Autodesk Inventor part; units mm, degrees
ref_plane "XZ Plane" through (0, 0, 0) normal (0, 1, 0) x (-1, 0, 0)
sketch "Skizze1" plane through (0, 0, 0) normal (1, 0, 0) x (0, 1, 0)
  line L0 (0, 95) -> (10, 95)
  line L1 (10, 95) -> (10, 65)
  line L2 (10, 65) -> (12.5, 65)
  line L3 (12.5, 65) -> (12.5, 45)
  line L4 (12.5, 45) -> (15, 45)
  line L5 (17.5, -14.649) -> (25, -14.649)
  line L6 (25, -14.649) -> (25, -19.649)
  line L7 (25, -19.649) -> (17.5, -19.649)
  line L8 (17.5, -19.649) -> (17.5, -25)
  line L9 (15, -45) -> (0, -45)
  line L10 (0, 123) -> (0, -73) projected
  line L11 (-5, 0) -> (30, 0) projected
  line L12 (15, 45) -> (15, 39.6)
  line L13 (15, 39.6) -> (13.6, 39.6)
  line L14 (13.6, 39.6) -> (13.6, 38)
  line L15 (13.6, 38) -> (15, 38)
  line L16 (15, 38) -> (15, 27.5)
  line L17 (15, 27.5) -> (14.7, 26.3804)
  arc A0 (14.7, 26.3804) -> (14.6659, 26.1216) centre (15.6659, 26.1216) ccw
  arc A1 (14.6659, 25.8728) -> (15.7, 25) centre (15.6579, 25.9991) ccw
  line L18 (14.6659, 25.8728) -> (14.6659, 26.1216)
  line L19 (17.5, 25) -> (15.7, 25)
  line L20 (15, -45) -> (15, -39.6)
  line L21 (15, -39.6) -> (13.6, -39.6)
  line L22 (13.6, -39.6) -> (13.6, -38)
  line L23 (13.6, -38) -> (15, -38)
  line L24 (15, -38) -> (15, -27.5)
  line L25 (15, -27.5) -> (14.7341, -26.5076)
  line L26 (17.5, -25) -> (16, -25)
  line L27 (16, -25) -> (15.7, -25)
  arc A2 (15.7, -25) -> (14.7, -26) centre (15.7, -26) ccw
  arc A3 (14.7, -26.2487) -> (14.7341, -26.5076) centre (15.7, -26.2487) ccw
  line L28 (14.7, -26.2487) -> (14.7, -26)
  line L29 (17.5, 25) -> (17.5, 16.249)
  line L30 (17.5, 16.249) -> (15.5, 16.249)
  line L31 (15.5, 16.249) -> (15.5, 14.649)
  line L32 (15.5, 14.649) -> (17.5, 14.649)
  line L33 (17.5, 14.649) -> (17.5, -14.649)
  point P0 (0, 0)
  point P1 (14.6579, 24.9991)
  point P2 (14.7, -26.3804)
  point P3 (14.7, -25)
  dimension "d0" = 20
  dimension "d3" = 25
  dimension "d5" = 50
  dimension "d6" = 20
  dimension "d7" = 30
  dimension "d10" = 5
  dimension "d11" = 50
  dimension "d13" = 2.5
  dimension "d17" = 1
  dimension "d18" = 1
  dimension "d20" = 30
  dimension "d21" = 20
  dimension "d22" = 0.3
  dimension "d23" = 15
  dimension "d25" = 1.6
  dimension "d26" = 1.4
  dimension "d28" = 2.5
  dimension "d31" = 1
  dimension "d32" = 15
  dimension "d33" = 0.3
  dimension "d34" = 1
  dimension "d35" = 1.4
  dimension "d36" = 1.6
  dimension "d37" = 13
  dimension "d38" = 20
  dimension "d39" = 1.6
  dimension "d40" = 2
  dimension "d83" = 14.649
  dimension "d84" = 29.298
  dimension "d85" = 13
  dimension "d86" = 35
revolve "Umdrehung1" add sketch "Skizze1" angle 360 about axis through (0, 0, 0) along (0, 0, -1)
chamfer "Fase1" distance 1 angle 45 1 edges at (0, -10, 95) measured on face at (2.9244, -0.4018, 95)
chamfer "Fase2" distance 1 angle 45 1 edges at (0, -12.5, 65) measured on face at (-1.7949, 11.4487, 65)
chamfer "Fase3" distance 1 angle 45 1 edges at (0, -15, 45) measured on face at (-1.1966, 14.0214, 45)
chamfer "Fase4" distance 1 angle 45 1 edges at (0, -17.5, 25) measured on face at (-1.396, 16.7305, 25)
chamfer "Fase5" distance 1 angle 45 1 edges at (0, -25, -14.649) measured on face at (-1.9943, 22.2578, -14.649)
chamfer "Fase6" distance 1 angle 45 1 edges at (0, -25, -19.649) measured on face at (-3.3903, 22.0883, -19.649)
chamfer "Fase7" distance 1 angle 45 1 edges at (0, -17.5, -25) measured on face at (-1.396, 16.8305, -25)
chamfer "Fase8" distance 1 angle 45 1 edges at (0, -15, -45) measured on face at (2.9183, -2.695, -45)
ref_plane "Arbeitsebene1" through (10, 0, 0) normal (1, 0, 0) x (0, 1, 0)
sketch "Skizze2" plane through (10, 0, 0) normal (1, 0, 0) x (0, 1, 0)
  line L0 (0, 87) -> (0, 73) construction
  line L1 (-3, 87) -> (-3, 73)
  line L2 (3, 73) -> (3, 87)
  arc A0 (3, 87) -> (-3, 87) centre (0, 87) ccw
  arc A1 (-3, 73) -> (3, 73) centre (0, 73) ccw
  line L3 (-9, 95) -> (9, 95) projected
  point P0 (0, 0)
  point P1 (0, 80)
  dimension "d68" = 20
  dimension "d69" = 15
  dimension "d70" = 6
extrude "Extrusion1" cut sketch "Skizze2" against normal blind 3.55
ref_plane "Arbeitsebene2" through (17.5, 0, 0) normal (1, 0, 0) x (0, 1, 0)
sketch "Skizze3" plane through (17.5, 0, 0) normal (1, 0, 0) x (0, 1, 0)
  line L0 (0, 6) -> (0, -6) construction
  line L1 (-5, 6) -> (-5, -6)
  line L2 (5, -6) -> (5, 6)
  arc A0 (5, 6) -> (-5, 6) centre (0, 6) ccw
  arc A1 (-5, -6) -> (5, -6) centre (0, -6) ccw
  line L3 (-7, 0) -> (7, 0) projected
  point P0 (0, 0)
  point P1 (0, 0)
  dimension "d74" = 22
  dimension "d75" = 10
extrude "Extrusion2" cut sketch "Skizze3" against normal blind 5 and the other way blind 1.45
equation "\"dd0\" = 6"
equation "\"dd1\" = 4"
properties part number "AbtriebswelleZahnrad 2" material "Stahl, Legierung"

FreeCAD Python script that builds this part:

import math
import FreeCAD as App
import Part
import Sketcher
Q = App.Units.Quantity


def edges_at(feature, points):
    """Names of the edges that pass closest to the given points."""
    edges = feature.Shape.Edges
    near = lambda p: min(range(len(edges)), key=lambda i: edges[i].distToShape(Part.Vertex(*p))[0])
    return sorted({f"Edge{near(p) + 1}" for p in points})

doc = App.newDocument("Part")
params = doc.addObject("Spreadsheet::Sheet", "Params")
for row, (alias, value) in enumerate([
    ("sketch1_radius", "1 mm"),
    ("sketch1_width", "15 mm"),
    ("sketch1_width2", "2 mm"),
    ("sketch1_height", "5 mm"),
    ("sketch1_height2", "20 mm"),
    ("revolution_angle", "360 deg"),
    ("chamfer_size", "1 mm"),
    ("chamfer2_size", "1 mm"),
    ("chamfer3_size", "1 mm"),
    ("chamfer4_size", "1 mm"),
    ("chamfer5_size", "1 mm"),
    ("chamfer6_size", "1 mm"),
    ("chamfer7_size", "1 mm"),
    ("chamfer8_size", "1 mm"),
    ("sketch2_radius", "3 mm"),
    ("sketch2_height", "14 mm"),
    ("pocket1_length", "3.55 mm"),
    ("sketch3_radius", "5 mm"),
    ("sketch3_height", "12 mm"),
    ("pocket2_length", "5 mm"),
    ("pocket2_length2", "1.45 mm"),
], start=1):
    params.set(f"A{row}", alias)
    params.set(f"B{row}", "=" + value)
    params.setAlias(f"B{row}", alias)

body = doc.addObject("PartDesign::Body", "Body")

sketch1 = doc.addObject("Sketcher::SketchObject", "Sketch")
body.addObject(sketch1)
sketch1.AttachmentSupport = (doc.YZ_Plane, [""])
sketch1.MapMode = "FlatFace"
sketch1.addGeometry(Part.LineSegment(App.Vector(10, 95, 0), App.Vector(0, 95, 0)), False)
sketch1.addGeometry(Part.LineSegment(App.Vector(0, 95, 0), App.Vector(0, -45, 0)), False)
sketch1.addGeometry(Part.LineSegment(App.Vector(0, -45, 0), App.Vector(15, -45, 0)), False)
sketch1.addGeometry(Part.LineSegment(App.Vector(15, -45, 0), App.Vector(15, -39.6, 0)), False)
sketch1.addGeometry(Part.LineSegment(App.Vector(15, -39.6, 0), App.Vector(13.6, -39.6, 0)), False)
sketch1.addGeometry(Part.LineSegment(App.Vector(13.6, -39.6, 0), App.Vector(13.6, -38, 0)), False)
sketch1.addGeometry(Part.LineSegment(App.Vector(13.6, -38, 0), App.Vector(15, -38, 0)), False)
sketch1.addGeometry(Part.LineSegment(App.Vector(15, -38, 0), App.Vector(15, -27.5, 0)), False)
sketch1.addGeometry(Part.LineSegment(App.Vector(15, -27.5, 0), App.Vector(14.73, -26.51, 0)), False)
sketch1.addGeometry(Part.ArcOfCircle(Part.Circle(App.Vector(15.7, -26.25, 0), App.Vector(0, 0, 1), 1), math.radians(180), math.radians(195)), False)
sketch1.addGeometry(Part.LineSegment(App.Vector(14.7, -26.25, 0), App.Vector(14.7, -26, 0)), False)
sketch1.addGeometry(Part.ArcOfCircle(Part.Circle(App.Vector(15.7, -26, 0), App.Vector(0, 0, 1), 1), math.radians(90), math.radians(180)), False)
sketch1.addGeometry(Part.LineSegment(App.Vector(15.7, -25, 0), App.Vector(17.5, -25, 0)), False)
sketch1.addGeometry(Part.LineSegment(App.Vector(17.5, -25, 0), App.Vector(17.5, -19.65, 0)), False)
sketch1.addGeometry(Part.LineSegment(App.Vector(17.5, -19.65, 0), App.Vector(25, -19.65, 0)), False)
sketch1.addGeometry(Part.LineSegment(App.Vector(25, -19.65, 0), App.Vector(25, -14.65, 0)), False)
sketch1.addGeometry(Part.LineSegment(App.Vector(25, -14.65, 0), App.Vector(17.5, -14.65, 0)), False)
sketch1.addGeometry(Part.LineSegment(App.Vector(17.5, -14.65, 0), App.Vector(17.5, 14.65, 0)), False)
sketch1.addGeometry(Part.LineSegment(App.Vector(17.5, 14.65, 0), App.Vector(15.5, 14.65, 0)), False)
sketch1.addGeometry(Part.LineSegment(App.Vector(15.5, 14.65, 0), App.Vector(15.5, 16.25, 0)), False)
sketch1.addGeometry(Part.LineSegment(App.Vector(15.5, 16.25, 0), App.Vector(17.5, 16.25, 0)), False)
sketch1.addGeometry(Part.LineSegment(App.Vector(17.5, 16.25, 0), App.Vector(17.5, 25, 0)), False)
sketch1.addGeometry(Part.LineSegment(App.Vector(17.5, 25, 0), App.Vector(15.7, 25, 0)), False)
sketch1.addGeometry(Part.ArcOfCircle(Part.Circle(App.Vector(15.66, 26, 0), App.Vector(0, 0, 1), 1), math.radians(-173), math.radians(-88)), False)
sketch1.addGeometry(Part.LineSegment(App.Vector(14.67, 25.87, 0), App.Vector(14.67, 26.12, 0)), False)
sketch1.addGeometry(Part.ArcOfCircle(Part.Circle(App.Vector(15.67, 26.12, 0), App.Vector(0, 0, 1), 1), math.radians(165.01), math.radians(179.98)), False)
sketch1.addGeometry(Part.LineSegment(App.Vector(14.7, 26.38, 0), App.Vector(15, 27.5, 0)), False)
sketch1.addGeometry(Part.LineSegment(App.Vector(15, 27.5, 0), App.Vector(15, 38, 0)), False)
sketch1.addGeometry(Part.LineSegment(App.Vector(15, 38, 0), App.Vector(13.6, 38, 0)), False)
sketch1.addGeometry(Part.LineSegment(App.Vector(13.6, 38, 0), App.Vector(13.6, 39.6, 0)), False)
sketch1.addGeometry(Part.LineSegment(App.Vector(13.6, 39.6, 0), App.Vector(15, 39.6, 0)), False)
sketch1.addGeometry(Part.LineSegment(App.Vector(15, 39.6, 0), App.Vector(15, 45, 0)), False)
sketch1.addGeometry(Part.LineSegment(App.Vector(15, 45, 0), App.Vector(12.5, 45, 0)), False)
sketch1.addGeometry(Part.LineSegment(App.Vector(12.5, 45, 0), App.Vector(12.5, 65, 0)), False)
sketch1.addGeometry(Part.LineSegment(App.Vector(12.5, 65, 0), App.Vector(10, 65, 0)), False)
sketch1.addGeometry(Part.LineSegment(App.Vector(10, 65, 0), App.Vector(10, 95, 0)), False)
sketch1.addConstraint(Sketcher.Constraint("Coincident", 0, 2, 1, 1))
sketch1.addConstraint(Sketcher.Constraint("Coincident", 1, 2, 2, 1))
sketch1.addConstraint(Sketcher.Constraint("Coincident", 2, 2, 3, 1))
sketch1.addConstraint(Sketcher.Constraint("Coincident", 3, 2, 4, 1))
sketch1.addConstraint(Sketcher.Constraint("Coincident", 4, 2, 5, 1))
sketch1.addConstraint(Sketcher.Constraint("Coincident", 5, 2, 6, 1))
sketch1.addConstraint(Sketcher.Constraint("Coincident", 6, 2, 7, 1))
sketch1.addConstraint(Sketcher.Constraint("Coincident", 7, 2, 8, 1))
sketch1.addConstraint(Sketcher.Constraint("Tangent", 8, 2, 9, 2))
sketch1.addConstraint(Sketcher.Constraint("Tangent", 9, 1, 10, 1))
sketch1.addConstraint(Sketcher.Constraint("Tangent", 10, 2, 11, 2))
sketch1.addConstraint(Sketcher.Constraint("Tangent", 11, 1, 12, 1))
sketch1.addConstraint(Sketcher.Constraint("Coincident", 12, 2, 13, 1))
sketch1.addConstraint(Sketcher.Constraint("Coincident", 13, 2, 14, 1))
sketch1.addConstraint(Sketcher.Constraint("Coincident", 14, 2, 15, 1))
sketch1.addConstraint(Sketcher.Constraint("Coincident", 15, 2, 16, 1))
sketch1.addConstraint(Sketcher.Constraint("Coincident", 16, 2, 17, 1))
sketch1.addConstraint(Sketcher.Constraint("Coincident", 17, 2, 18, 1))
sketch1.addConstraint(Sketcher.Constraint("Coincident", 18, 2, 19, 1))
sketch1.addConstraint(Sketcher.Constraint("Coincident", 19, 2, 20, 1))
sketch1.addConstraint(Sketcher.Constraint("Coincident", 20, 2, 21, 1))
sketch1.addConstraint(Sketcher.Constraint("Coincident", 21, 2, 22, 1))
sketch1.addConstraint(Sketcher.Constraint("Coincident", 22, 2, 23, 2))
sketch1.addConstraint(Sketcher.Constraint("Coincident", 23, 1, 24, 1))
sketch1.addConstraint(Sketcher.Constraint("Tangent", 24, 2, 25, 2))
sketch1.addConstraint(Sketcher.Constraint("Tangent", 25, 1, 26, 1))
sketch1.addConstraint(Sketcher.Constraint("Coincident", 26, 2, 27, 1))
sketch1.addConstraint(Sketcher.Constraint("Coincident", 27, 2, 28, 1))
sketch1.addConstraint(Sketcher.Constraint("Coincident", 28, 2, 29, 1))
sketch1.addConstraint(Sketcher.Constraint("Coincident", 29, 2, 30, 1))
sketch1.addConstraint(Sketcher.Constraint("Coincident", 30, 2, 31, 1))
sketch1.addConstraint(Sketcher.Constraint("Coincident", 31, 2, 32, 1))
sketch1.addConstraint(Sketcher.Constraint("Coincident", 32, 2, 33, 1))
sketch1.addConstraint(Sketcher.Constraint("Coincident", 33, 2, 34, 1))
sketch1.addConstraint(Sketcher.Constraint("Coincident", 34, 2, 35, 1))
sketch1.addConstraint(Sketcher.Constraint("Coincident", 35, 2, 0, 1))
sketch1.addConstraint(Sketcher.Constraint("Horizontal", 0))
sketch1.addConstraint(Sketcher.Constraint("Vertical", 1))
sketch1.addConstraint(Sketcher.Constraint("Horizontal", 2))
sketch1.addConstraint(Sketcher.Constraint("Vertical", 3))
sketch1.addConstraint(Sketcher.Constraint("Horizontal", 4))
sketch1.addConstraint(Sketcher.Constraint("Vertical", 5))
sketch1.addConstraint(Sketcher.Constraint("Horizontal", 6))
sketch1.addConstraint(Sketcher.Constraint("Vertical", 7))
sketch1.addConstraint(Sketcher.Constraint("Vertical", 10))
sketch1.addConstraint(Sketcher.Constraint("Horizontal", 12))
sketch1.addConstraint(Sketcher.Constraint("Vertical", 13))
sketch1.addConstraint(Sketcher.Constraint("Horizontal", 14))
sketch1.addConstraint(Sketcher.Constraint("Vertical", 15))
sketch1.addConstraint(Sketcher.Constraint("Horizontal", 16))
sketch1.addConstraint(Sketcher.Constraint("Vertical", 17))
sketch1.addConstraint(Sketcher.Constraint("Horizontal", 18))
sketch1.addConstraint(Sketcher.Constraint("Vertical", 19))
sketch1.addConstraint(Sketcher.Constraint("Horizontal", 20))
sketch1.addConstraint(Sketcher.Constraint("Vertical", 21))
sketch1.addConstraint(Sketcher.Constraint("Horizontal", 22))
sketch1.addConstraint(Sketcher.Constraint("Vertical", 24))
sketch1.addConstraint(Sketcher.Constraint("Vertical", 27))
sketch1.addConstraint(Sketcher.Constraint("Horizontal", 28))
sketch1.addConstraint(Sketcher.Constraint("Vertical", 29))
sketch1.addConstraint(Sketcher.Constraint("Horizontal", 30))
sketch1.addConstraint(Sketcher.Constraint("Vertical", 31))
sketch1.addConstraint(Sketcher.Constraint("Horizontal", 32))
sketch1.addConstraint(Sketcher.Constraint("Vertical", 33))
sketch1.addConstraint(Sketcher.Constraint("Horizontal", 34))
sketch1.addConstraint(Sketcher.Constraint("Vertical", 35))
sketch1.addConstraint(Sketcher.Constraint("Equal", 9, 11))
sketch1.addConstraint(Sketcher.Constraint("Equal", 11, 23))
sketch1.addConstraint(Sketcher.Constraint("Symmetric", 12, 2, 21, 2, -1))
sketch1.addConstraint(Sketcher.Constraint("Symmetric", 7, 2, 26, 2, -1))
sketch1.addConstraint(Sketcher.Constraint("Symmetric", 5, 2, 28, 2, -1))
sketch1.addConstraint(Sketcher.Constraint("Symmetric", 3, 2, 30, 2, -1))
sketch1.addConstraint(Sketcher.Constraint("PointOnObject", 0, 2, -2))
sketch1.addConstraint(Sketcher.Constraint("Vertical", 3, 2, 6, 2))
sketch1.addConstraint(Sketcher.Constraint("Vertical", 13, 2, 16, 2))
sketch1.addConstraint(Sketcher.Constraint("Vertical", 11, 1, 22, 2))
sketch1.addConstraint(Sketcher.Constraint("Vertical", 10, 2, 25, 1))
sketch1.addConstraint(Sketcher.Constraint("Equal", 32, 34))
sketch1.addConstraint(Sketcher.Constraint("Equal", 5, 19))
sketch1.addConstraint(Sketcher.Constraint("Equal", 10, 24))
sketch1.addConstraint(Sketcher.Constraint("Equal", 3, 31))
sketch1.addConstraint(Sketcher.Constraint("Radius", 9, 1.0))
sketch1.addConstraint(Sketcher.Constraint("DistanceX", 2, 1, 2, 2, 15.0))
sketch1.addConstraint(Sketcher.Constraint("DistanceX", 18, 2, 18, 1, 2.0))
sketch1.addConstraint(Sketcher.Constraint("DistanceY", 15, 1, 15, 2, 5.0))
sketch1.addConstraint(Sketcher.Constraint("DistanceY", 33, 1, 33, 2, 20.0))
sketch1.addConstraint(Sketcher.Constraint("DistanceY", 35, 1, 35, 2, 30.0))
sketch1.addConstraint(Sketcher.Constraint("DistanceX", 4, 2, 4, 1, 1.4))
sketch1.addConstraint(Sketcher.Constraint("DistanceX", 32, 2, 32, 1, 2.5))
sketch1.addConstraint(Sketcher.Constraint("DistanceY", 5, 1, 5, 2, 1.6))
sketch1.addConstraint(Sketcher.Constraint("DistanceY", 11, 1, -1, 1, 25.0))
sketch1.addConstraint(Sketcher.Constraint("DistanceX", -1, 1, 14, 2, 25.0))
sketch1.addConstraint(Sketcher.Constraint("DistanceX", 9, 1, 7, 2, 0.3))
sketch1.addConstraint(Sketcher.Constraint("DistanceY", 1, 2, 1, 1, 140.0))
sketch1.addConstraint(Sketcher.Constraint("DistanceY", 17, 1, 17, 2, 29.298))
sketch1.addConstraint(Sketcher.Constraint("Angle", 8, Q("104.9993 deg")))
sketch1.addConstraint(Sketcher.Constraint("Angle", 26, Q("74.9998 deg")))
sketch1.addConstraint(Sketcher.Constraint("DistanceX", 12, 1, 12, 2, 1.8))
sketch1.addConstraint(Sketcher.Constraint("DistanceY", 3, 1, 3, 2, 5.4))
sketch1.addConstraint(Sketcher.Constraint("DistanceY", 7, 1, 7, 2, 10.5))
sketch1.addConstraint(Sketcher.Constraint("DistanceY", 15, 2, -1, 1, 14.649))
sketch1.addConstraint(Sketcher.Constraint("Radius", 25, 1.0017))
sketch1.setExpression("Constraints[81]", "Params.sketch1_radius")
sketch1.setExpression("Constraints[82]", "Params.sketch1_width")
sketch1.setExpression("Constraints[83]", "Params.sketch1_width2")
sketch1.setExpression("Constraints[84]", "Params.sketch1_height")
sketch1.setExpression("Constraints[85]", "Params.sketch1_height2")
revolution = doc.addObject("PartDesign::Revolution", "Revolution")
body.addObject(revolution)
revolution.Profile = sketch1
revolution.ReferenceAxis = (sketch1, ["V_Axis"])
revolution.setExpression("Angle", "Params.revolution_angle")
doc.recompute()

chamfer = doc.addObject("PartDesign::Chamfer", "Chamfer")
body.addObject(chamfer)
chamfer.Base = (revolution, edges_at(revolution, [(0, -10, 95)]))
chamfer.setExpression("Size", "Params.chamfer_size")
doc.recompute()

chamfer2 = doc.addObject("PartDesign::Chamfer", "Chamfer001")
body.addObject(chamfer2)
chamfer2.Base = (chamfer, edges_at(chamfer, [(0, -12.5, 65)]))
chamfer2.setExpression("Size", "Params.chamfer2_size")
doc.recompute()

chamfer3 = doc.addObject("PartDesign::Chamfer", "Chamfer002")
body.addObject(chamfer3)
chamfer3.Base = (chamfer2, edges_at(chamfer2, [(0, -15, 45)]))
chamfer3.setExpression("Size", "Params.chamfer3_size")
doc.recompute()

chamfer4 = doc.addObject("PartDesign::Chamfer", "Chamfer003")
body.addObject(chamfer4)
chamfer4.Base = (chamfer3, edges_at(chamfer3, [(0, -17.5, 25)]))
chamfer4.setExpression("Size", "Params.chamfer4_size")
doc.recompute()

chamfer5 = doc.addObject("PartDesign::Chamfer", "Chamfer004")
body.addObject(chamfer5)
chamfer5.Base = (chamfer4, edges_at(chamfer4, [(0, -25, -14.649)]))
chamfer5.setExpression("Size", "Params.chamfer5_size")
doc.recompute()

chamfer6 = doc.addObject("PartDesign::Chamfer", "Chamfer005")
body.addObject(chamfer6)
chamfer6.Base = (chamfer5, edges_at(chamfer5, [(0, -25, -19.649)]))
chamfer6.setExpression("Size", "Params.chamfer6_size")
doc.recompute()

chamfer7 = doc.addObject("PartDesign::Chamfer", "Chamfer006")
body.addObject(chamfer7)
chamfer7.Base = (chamfer6, edges_at(chamfer6, [(0, -17.5, -25)]))
chamfer7.setExpression("Size", "Params.chamfer7_size")
doc.recompute()

chamfer8 = doc.addObject("PartDesign::Chamfer", "Chamfer007")
body.addObject(chamfer8)
chamfer8.Base = (chamfer7, edges_at(chamfer7, [(0, -15, -45)]))
chamfer8.setExpression("Size", "Params.chamfer8_size")

sketch2 = doc.addObject("Sketcher::SketchObject", "Sketch001")
body.addObject(sketch2)
sketch2.AttachmentSupport = (doc.YZ_Plane, [""])
sketch2.MapMode = "FlatFace"
sketch2.AttachmentOffset = App.Placement(App.Vector(0, 0, 10), App.Rotation())
sketch2.addGeometry(Part.ArcOfCircle(Part.Circle(App.Vector(0, 87, 0), App.Vector(0, 0, 1), 3), math.radians(0), math.radians(180)), False)
sketch2.addGeometry(Part.LineSegment(App.Vector(-3, 87, 0), App.Vector(-3, 73, 0)), False)
sketch2.addGeometry(Part.ArcOfCircle(Part.Circle(App.Vector(0, 73, 0), App.Vector(0, 0, 1), 3), math.radians(180), math.radians(360)), False)
sketch2.addGeometry(Part.LineSegment(App.Vector(3, 73, 0), App.Vector(3, 87, 0)), False)
sketch2.addConstraint(Sketcher.Constraint("Tangent", 0, 2, 1, 1))
sketch2.addConstraint(Sketcher.Constraint("Tangent", 1, 2, 2, 1))
sketch2.addConstraint(Sketcher.Constraint("Tangent", 2, 2, 3, 1))
sketch2.addConstraint(Sketcher.Constraint("Tangent", 3, 2, 0, 1))
sketch2.addConstraint(Sketcher.Constraint("Vertical", 1))
sketch2.addConstraint(Sketcher.Constraint("Vertical", 3))
sketch2.addConstraint(Sketcher.Constraint("PointOnObject", 0, 3, -2))
sketch2.addConstraint(Sketcher.Constraint("Radius", 0, 3.0))
sketch2.addConstraint(Sketcher.Constraint("DistanceY", 1, 2, 1, 1, 14.0))
sketch2.addConstraint(Sketcher.Constraint("DistanceY", -1, 1, 0, 3, 87.0))
sketch2.setExpression("Constraints[7]", "Params.sketch2_radius")
sketch2.setExpression("Constraints[8]", "Params.sketch2_height")
pocket1 = doc.addObject("PartDesign::Pocket", "Pocket")
body.addObject(pocket1)
pocket1.Profile = sketch2
pocket1.setExpression("Length", "Params.pocket1_length")

sketch3 = doc.addObject("Sketcher::SketchObject", "Sketch002")
body.addObject(sketch3)
sketch3.AttachmentSupport = (doc.YZ_Plane, [""])
sketch3.MapMode = "FlatFace"
sketch3.AttachmentOffset = App.Placement(App.Vector(0, 0, 17.5), App.Rotation())
sketch3.addGeometry(Part.ArcOfCircle(Part.Circle(App.Vector(0, 6, 0), App.Vector(0, 0, 1), 5), math.radians(0), math.radians(180)), False)
sketch3.addGeometry(Part.LineSegment(App.Vector(-5, 6, 0), App.Vector(-5, -6, 0)), False)
sketch3.addGeometry(Part.ArcOfCircle(Part.Circle(App.Vector(0, -6, 0), App.Vector(0, 0, 1), 5), math.radians(180), math.radians(360)), False)
sketch3.addGeometry(Part.LineSegment(App.Vector(5, -6, 0), App.Vector(5, 6, 0)), False)
sketch3.addConstraint(Sketcher.Constraint("Tangent", 0, 2, 1, 1))
sketch3.addConstraint(Sketcher.Constraint("Tangent", 1, 2, 2, 1))
sketch3.addConstraint(Sketcher.Constraint("Tangent", 2, 2, 3, 1))
sketch3.addConstraint(Sketcher.Constraint("Tangent", 3, 2, 0, 1))
sketch3.addConstraint(Sketcher.Constraint("Vertical", 1))
sketch3.addConstraint(Sketcher.Constraint("Vertical", 3))
sketch3.addConstraint(Sketcher.Constraint("Symmetric", 0, 3, 2, 3, -1, 1))
sketch3.addConstraint(Sketcher.Constraint("Radius", 0, 5.0))
sketch3.addConstraint(Sketcher.Constraint("DistanceY", 1, 2, 1, 1, 12.0))
sketch3.setExpression("Constraints[7]", "Params.sketch3_radius")
sketch3.setExpression("Constraints[8]", "Params.sketch3_height")
pocket2 = doc.addObject("PartDesign::Pocket", "Pocket001")
body.addObject(pocket2)
pocket2.Profile = sketch3
pocket2.Type = "TwoLengths"
pocket2.setExpression("Length", "Params.pocket2_length")
pocket2.setExpression("Length2", "Params.pocket2_length2")

doc.recompute()
